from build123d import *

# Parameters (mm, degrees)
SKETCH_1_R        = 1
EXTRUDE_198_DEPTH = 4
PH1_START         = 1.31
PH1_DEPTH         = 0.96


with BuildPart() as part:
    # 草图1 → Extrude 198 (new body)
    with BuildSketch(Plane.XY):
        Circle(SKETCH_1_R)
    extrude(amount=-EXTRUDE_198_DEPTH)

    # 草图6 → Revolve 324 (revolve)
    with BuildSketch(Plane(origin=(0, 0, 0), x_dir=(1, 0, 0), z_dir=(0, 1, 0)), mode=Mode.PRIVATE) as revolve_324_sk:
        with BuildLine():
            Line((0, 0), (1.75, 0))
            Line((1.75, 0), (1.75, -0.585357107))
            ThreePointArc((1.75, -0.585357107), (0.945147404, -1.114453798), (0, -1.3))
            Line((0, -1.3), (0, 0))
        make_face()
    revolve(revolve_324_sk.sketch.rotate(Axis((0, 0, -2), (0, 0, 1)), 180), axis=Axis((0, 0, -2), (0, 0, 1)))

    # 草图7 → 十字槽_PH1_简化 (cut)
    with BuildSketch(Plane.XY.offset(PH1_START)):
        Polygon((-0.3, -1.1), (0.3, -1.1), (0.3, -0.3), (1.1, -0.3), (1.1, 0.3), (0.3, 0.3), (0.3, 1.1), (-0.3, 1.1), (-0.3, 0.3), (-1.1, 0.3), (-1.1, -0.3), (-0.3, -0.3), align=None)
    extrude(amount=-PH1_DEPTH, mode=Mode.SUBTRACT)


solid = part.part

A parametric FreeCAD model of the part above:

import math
import FreeCAD as App
import Part
import Sketcher

V = App.Vector

doc = App.newDocument("Part")
params = doc.addObject("Spreadsheet::Sheet", "Params")
for row, (alias, value) in enumerate([
    ("sketch1_diameter", "2 mm"),
    ("pad1_length", "4 mm"),
    ("sketch2_radius", "2.5 mm"),
    ("sketch2_height", "1.3 mm"),
    ("sketch2_width", "1.75 mm"),
    ("revolution_angle", "360 deg"),
    ("sketch3_width", "0.6 mm"),
    ("sketch3_width2", "0.8 mm"),
    ("pocket1_length", "0.96 mm"),
], start=1):
    params.set(f"A{row}", alias)
    params.set(f"B{row}", "=" + value)
    params.setAlias(f"B{row}", alias)

body = doc.addObject("PartDesign::Body", "Body")

sketch1 = body.newObject("Sketcher::SketchObject", "Sketch")
sketch1.AttachmentSupport = (doc.getObject("XY_Plane"), [""])
sketch1.MapMode = "FlatFace"
sketch1.addGeometry(Part.Circle(V(0, 0, 0), V(0, 0, 1), 1), False)
sketch1.addConstraint([
    Sketcher.Constraint("Coincident", 0, 3, -1, 1),
    Sketcher.Constraint("Diameter", 0, 2.0),
])
sketch1.setExpression("Constraints[1]", "Params.sketch1_diameter")
pad1 = body.newObject("PartDesign::Pad", "Pad")
pad1.Profile = sketch1
pad1.setExpression("Length", "Params.pad1_length")
pad1.Reversed = True

sketch2 = body.newObject("Sketcher::SketchObject", "Sketch001")
sketch2.AttachmentSupport = (doc.getObject("XZ_Plane"), [""])
sketch2.MapMode = "FlatFace"
sketch2.addGeometry([
    Part.LineSegment(V(1.75, 0, 0), V(0, 0, 0)),
    Part.LineSegment(V(0, 0, 0), V(0, 1.3, 0)),
    Part.ArcOfCircle(Part.Circle(V(0, -1.2, 0), V(0, 0, 1), 2.5), math.radians(45.572996), math.radians(90)),
    Part.LineSegment(V(1.75, 0.585357, 0), V(1.75, 0, 0)),
], False)
sketch2.addConstraint([
    Sketcher.Constraint("Coincident", 0, 2, 1, 1),
    Sketcher.Constraint("Coincident", 1, 2, 2, 2),
    Sketcher.Constraint("Coincident", 2, 1, 3, 1),
    Sketcher.Constraint("Coincident", 3, 2, 0, 1),
    Sketcher.Constraint("Horizontal", 0),
    Sketcher.Constraint("Vertical", 1),
    Sketcher.Constraint("Vertical", 3),
    Sketcher.Constraint("Coincident", 0, 2, -1, 1),
    Sketcher.Constraint("PointOnObject", 2, 3, -2),
    Sketcher.Constraint("Radius", 2, 2.5),
    Sketcher.Constraint("DistanceY", 1, 1, 1, 2, 1.3),
    Sketcher.Constraint("DistanceX", 0, 2, 0, 1, 1.75),
])
sketch2.setExpression("Constraints[9]", "Params.sketch2_radius")
sketch2.setExpression("Constraints[10]", "Params.sketch2_height")
sketch2.setExpression("Constraints[11]", "Params.sketch2_width")
revolution = body.newObject("PartDesign::Revolution", "Revolution")
revolution.Profile = sketch2
revolution.ReferenceAxis = (sketch2, ["V_Axis"])
revolution.setExpression("Angle", "Params.revolution_angle")

sketch3 = body.newObject("Sketcher::SketchObject", "Sketch002")
sketch3.AttachmentSupport = (doc.getObject("XY_Plane"), [""])
sketch3.MapMode = "FlatFace"
sketch3.AttachmentOffset = App.Placement(V(0, 0, 1.31), App.Rotation())
sketch3.addGeometry([
    Part.LineSegment(V(-0.3, -1.1, 0), V(0.3, -1.1, 0)),
    Part.LineSegment(V(0.3, -1.1, 0), V(0.3, -0.3, 0)),
    Part.LineSegment(V(0.3, -0.3, 0), V(1.1, -0.3, 0)),
    Part.LineSegment(V(1.1, -0.3, 0), V(1.1, 0.3, 0)),
    Part.LineSegment(V(1.1, 0.3, 0), V(0.3, 0.3, 0)),
    Part.LineSegment(V(0.3, 0.3, 0), V(0.3, 1.1, 0)),
    Part.LineSegment(V(0.3, 1.1, 0), V(-0.3, 1.1, 0)),
    Part.LineSegment(V(-0.3, 1.1, 0), V(-0.3, 0.3, 0)),
    Part.LineSegment(V(-0.3, 0.3, 0), V(-1.1, 0.3, 0)),
    Part.LineSegment(V(-1.1, 0.3, 0), V(-1.1, -0.3, 0)),
    Part.LineSegment(V(-1.1, -0.3, 0), V(-0.3, -0.3, 0)),
    Part.LineSegment(V(-0.3, -0.3, 0), V(-0.3, -1.1, 0)),
], False)
sketch3.addConstraint([
    Sketcher.Constraint("Coincident", 0, 2, 1, 1),
    Sketcher.Constraint("Coincident", 1, 2, 2, 1),
    Sketcher.Constraint("Coincident", 2, 2, 3, 1),
    Sketcher.Constraint("Coincident", 3, 2, 4, 1),
    Sketcher.Constraint("Coincident", 4, 2, 5, 1),
    Sketcher.Constraint("Coincident", 5, 2, 6, 1),
    Sketcher.Constraint("Coincident", 6, 2, 7, 1),
    Sketcher.Constraint("Coincident", 7, 2, 8, 1),
    Sketcher.Constraint("Coincident", 8, 2, 9, 1),
    Sketcher.Constraint("Coincident", 9, 2, 10, 1),
    Sketcher.Constraint("Coincident", 10, 2, 11, 1),
    Sketcher.Constraint("Coincident", 11, 2, 0, 1),
    Sketcher.Constraint("Horizontal", 0),
    Sketcher.Constraint("Vertical", 1),
    Sketcher.Constraint("Horizontal", 2),
    Sketcher.Constraint("Vertical", 3),
    Sketcher.Constraint("Horizontal", 4),
    Sketcher.Constraint("Vertical", 5),
    Sketcher.Constraint("Horizontal", 6),
    Sketcher.Constraint("Vertical", 7),
    Sketcher.Constraint("Horizontal", 8),
    Sketcher.Constraint("Vertical", 9),
    Sketcher.Constraint("Horizontal", 10),
    Sketcher.Constraint("Vertical", 11),
    Sketcher.Constraint("Symmetric", 0, 2, 6, 2, -1, 1),
    Sketcher.Constraint("Symmetric", 2, 2, 8, 2, -1, 1),
    Sketcher.Constraint("Symmetric", 4, 2, 10, 2, -1, 1),
    Sketcher.Constraint("Symmetric", 4, 2, 7, 2, -2),
    Sketcher.Constraint("Equal", 10, 1),
    Sketcher.Constraint("Equal", 6, 3),
    Sketcher.Constraint("DistanceX", 0, 1, 0, 2, 0.6),
    Sketcher.Constraint("DistanceX", 2, 1, 2, 2, 0.8),
])
sketch3.setExpression("Constraints[30]", "Params.sketch3_width")
sketch3.setExpression("Constraints[31]", "Params.sketch3_width2")
pocket1 = body.newObject("PartDesign::Pocket", "Pocket")
pocket1.Profile = sketch3
pocket1.setExpression("Length", "Params.pocket1_length")

doc.recompute()
